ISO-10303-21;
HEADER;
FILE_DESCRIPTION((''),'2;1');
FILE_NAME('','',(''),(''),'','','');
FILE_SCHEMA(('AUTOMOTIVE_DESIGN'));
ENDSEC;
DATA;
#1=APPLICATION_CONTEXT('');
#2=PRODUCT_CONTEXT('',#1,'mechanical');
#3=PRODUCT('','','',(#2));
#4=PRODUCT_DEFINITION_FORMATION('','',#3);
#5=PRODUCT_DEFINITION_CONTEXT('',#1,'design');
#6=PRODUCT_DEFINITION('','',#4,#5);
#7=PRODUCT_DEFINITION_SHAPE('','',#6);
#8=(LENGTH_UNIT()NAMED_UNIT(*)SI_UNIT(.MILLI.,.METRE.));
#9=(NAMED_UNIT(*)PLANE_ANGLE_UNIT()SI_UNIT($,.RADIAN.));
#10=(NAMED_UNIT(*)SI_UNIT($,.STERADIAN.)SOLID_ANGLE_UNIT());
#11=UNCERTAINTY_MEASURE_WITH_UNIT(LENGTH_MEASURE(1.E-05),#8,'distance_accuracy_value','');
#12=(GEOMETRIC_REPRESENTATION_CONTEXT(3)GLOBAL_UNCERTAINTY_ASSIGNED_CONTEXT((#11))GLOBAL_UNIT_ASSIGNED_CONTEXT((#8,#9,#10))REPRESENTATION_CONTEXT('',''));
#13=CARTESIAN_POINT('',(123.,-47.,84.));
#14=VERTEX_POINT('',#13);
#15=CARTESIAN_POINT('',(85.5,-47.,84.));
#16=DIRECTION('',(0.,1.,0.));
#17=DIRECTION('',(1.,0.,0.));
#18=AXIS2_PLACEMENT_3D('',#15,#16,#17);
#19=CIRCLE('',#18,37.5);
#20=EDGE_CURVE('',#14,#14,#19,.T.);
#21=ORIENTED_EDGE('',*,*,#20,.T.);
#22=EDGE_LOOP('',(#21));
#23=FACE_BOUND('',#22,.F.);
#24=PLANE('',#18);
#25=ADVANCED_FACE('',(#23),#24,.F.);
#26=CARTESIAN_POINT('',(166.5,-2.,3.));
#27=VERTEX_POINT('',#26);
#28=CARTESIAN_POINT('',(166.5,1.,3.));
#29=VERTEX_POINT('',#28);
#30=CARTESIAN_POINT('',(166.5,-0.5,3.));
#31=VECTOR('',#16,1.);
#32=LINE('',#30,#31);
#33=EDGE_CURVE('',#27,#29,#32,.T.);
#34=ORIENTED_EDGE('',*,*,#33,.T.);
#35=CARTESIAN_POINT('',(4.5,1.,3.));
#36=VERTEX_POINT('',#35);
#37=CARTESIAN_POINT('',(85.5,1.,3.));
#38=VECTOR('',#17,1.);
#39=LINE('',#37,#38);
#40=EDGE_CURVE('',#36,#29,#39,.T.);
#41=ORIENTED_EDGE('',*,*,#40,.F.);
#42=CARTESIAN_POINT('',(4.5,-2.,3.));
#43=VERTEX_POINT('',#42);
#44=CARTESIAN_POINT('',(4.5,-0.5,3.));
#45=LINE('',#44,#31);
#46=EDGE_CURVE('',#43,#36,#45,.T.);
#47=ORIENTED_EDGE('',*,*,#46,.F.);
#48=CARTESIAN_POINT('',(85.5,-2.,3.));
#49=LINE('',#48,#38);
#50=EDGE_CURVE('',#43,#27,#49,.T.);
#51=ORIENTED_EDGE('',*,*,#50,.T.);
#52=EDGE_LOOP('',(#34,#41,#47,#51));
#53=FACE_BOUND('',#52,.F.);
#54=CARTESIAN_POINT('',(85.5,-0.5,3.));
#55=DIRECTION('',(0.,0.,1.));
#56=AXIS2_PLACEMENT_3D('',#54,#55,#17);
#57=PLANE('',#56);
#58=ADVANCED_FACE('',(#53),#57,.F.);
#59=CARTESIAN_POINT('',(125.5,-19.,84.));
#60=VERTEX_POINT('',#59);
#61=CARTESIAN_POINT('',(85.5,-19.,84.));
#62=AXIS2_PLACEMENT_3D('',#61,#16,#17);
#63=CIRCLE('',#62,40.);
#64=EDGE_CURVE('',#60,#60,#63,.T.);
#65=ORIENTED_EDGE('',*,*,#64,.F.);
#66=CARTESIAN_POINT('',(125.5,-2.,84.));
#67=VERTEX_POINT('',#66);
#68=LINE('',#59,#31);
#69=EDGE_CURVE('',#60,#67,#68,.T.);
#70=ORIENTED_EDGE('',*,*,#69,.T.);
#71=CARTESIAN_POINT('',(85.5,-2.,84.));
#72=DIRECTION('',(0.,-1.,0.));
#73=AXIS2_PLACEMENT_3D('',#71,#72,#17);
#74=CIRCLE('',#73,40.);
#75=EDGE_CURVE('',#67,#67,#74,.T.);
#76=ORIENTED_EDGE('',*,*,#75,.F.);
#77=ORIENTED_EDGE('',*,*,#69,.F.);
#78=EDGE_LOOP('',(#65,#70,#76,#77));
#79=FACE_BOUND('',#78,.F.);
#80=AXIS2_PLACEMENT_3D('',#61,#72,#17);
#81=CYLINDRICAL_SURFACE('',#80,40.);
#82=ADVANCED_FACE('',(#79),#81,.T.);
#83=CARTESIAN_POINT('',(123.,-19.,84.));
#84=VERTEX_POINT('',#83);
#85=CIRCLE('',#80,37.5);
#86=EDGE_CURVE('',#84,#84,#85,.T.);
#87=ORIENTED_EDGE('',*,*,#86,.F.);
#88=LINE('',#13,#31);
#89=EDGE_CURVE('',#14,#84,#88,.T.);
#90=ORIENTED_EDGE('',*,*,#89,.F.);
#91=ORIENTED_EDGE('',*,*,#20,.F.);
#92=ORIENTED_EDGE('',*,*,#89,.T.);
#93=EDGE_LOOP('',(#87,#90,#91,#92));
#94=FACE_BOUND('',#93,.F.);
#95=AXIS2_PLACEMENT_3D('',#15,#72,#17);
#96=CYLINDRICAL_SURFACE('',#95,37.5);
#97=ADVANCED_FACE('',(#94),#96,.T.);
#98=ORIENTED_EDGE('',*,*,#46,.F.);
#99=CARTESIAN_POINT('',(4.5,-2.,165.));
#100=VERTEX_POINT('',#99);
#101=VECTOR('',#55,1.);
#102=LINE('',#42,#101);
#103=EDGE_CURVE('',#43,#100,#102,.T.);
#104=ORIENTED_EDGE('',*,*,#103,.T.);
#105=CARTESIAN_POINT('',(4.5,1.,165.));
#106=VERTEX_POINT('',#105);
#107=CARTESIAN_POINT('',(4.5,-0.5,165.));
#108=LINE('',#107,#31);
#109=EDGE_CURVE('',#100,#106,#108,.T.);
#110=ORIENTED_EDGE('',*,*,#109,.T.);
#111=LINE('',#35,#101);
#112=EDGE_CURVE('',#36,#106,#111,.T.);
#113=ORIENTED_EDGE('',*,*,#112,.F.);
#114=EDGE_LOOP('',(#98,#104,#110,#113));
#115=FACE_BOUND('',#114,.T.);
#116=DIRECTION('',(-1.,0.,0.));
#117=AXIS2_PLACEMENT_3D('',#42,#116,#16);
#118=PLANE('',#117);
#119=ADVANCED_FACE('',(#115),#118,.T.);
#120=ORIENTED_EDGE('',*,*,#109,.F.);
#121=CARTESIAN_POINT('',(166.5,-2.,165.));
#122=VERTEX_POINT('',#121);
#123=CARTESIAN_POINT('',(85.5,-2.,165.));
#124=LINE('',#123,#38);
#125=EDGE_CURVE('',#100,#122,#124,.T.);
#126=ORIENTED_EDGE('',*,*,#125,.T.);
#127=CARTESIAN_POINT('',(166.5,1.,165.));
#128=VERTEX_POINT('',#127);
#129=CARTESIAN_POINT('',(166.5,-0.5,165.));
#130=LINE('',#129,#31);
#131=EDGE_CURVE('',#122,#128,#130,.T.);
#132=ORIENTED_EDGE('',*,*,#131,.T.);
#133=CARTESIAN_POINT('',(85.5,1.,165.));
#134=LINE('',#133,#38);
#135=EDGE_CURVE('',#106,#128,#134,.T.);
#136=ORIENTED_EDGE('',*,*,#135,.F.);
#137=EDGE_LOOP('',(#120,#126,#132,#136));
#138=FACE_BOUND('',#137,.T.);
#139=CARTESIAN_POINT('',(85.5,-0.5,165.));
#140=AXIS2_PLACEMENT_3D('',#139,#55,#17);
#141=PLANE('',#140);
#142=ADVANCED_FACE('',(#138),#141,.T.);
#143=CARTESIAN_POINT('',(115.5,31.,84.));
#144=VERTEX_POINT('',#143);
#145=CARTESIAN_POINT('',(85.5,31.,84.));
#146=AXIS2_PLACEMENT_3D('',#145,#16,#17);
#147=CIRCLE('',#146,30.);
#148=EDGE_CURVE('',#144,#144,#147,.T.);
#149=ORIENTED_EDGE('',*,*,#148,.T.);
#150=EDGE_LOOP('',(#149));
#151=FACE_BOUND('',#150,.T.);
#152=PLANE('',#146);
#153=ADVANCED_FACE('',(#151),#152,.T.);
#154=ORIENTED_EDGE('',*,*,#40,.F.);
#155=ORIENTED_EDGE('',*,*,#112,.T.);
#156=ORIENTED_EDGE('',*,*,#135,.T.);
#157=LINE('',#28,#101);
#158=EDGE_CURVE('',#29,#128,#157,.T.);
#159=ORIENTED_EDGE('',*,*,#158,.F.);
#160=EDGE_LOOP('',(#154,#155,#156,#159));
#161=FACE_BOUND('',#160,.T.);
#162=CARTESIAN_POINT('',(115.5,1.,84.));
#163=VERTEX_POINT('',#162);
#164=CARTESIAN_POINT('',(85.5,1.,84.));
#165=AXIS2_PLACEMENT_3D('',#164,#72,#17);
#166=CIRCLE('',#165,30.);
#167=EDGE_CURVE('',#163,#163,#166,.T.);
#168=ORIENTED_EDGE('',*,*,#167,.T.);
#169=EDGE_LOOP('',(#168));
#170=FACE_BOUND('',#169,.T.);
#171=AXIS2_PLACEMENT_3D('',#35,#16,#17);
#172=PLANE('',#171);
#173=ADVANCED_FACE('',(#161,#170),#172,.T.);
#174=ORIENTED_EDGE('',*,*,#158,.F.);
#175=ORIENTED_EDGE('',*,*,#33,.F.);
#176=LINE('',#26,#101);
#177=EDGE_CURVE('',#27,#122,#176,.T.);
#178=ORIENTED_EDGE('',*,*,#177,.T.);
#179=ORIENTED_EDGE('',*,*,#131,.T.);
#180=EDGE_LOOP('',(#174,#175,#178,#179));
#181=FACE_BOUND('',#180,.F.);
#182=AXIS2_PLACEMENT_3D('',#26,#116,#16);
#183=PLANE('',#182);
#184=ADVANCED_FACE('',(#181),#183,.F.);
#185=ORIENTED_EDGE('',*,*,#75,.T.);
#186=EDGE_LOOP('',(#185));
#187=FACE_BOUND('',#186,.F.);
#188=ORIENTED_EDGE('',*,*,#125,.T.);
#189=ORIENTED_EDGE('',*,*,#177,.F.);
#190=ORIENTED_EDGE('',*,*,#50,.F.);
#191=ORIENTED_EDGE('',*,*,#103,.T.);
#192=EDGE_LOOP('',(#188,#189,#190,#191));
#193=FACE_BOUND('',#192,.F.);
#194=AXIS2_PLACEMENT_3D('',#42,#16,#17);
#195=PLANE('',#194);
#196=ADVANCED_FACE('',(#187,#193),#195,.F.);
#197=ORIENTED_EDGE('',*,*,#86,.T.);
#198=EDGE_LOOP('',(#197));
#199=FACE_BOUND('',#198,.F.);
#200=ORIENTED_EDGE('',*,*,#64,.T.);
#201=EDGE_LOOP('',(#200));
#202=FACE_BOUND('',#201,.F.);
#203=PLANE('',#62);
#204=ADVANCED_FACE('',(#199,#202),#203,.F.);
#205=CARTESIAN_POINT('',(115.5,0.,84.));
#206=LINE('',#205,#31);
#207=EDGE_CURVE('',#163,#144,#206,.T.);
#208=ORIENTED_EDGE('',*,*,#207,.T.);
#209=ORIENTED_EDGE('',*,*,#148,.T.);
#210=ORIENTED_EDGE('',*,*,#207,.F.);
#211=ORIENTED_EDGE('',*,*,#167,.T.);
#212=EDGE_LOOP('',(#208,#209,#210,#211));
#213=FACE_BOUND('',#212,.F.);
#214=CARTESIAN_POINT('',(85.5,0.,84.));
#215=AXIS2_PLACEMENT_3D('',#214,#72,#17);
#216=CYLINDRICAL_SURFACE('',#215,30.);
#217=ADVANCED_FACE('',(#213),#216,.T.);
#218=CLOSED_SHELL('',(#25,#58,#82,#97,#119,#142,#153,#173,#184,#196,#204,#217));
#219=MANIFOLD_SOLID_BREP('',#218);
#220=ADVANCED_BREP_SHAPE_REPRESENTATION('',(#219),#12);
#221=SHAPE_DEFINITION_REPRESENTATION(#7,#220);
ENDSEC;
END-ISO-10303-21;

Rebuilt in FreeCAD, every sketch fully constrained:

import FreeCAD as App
import Part
import Sketcher
from FreeCAD import Vector
Q = App.Units.Quantity

doc = App.newDocument("Part")
body = doc.addObject("PartDesign::Body", "Body")

sketch1 = body.newObject("Sketcher::SketchObject", "Sketch")
sketch1.AttachmentSupport = (doc.getObject("XY_Plane"), [""])
sketch1.MapMode = "FlatFace"
sketch1.addGeometry([
    Part.LineSegment(Vector(0, 3, 0), Vector(0, 0, 0)),
    Part.LineSegment(Vector(0, 0, 0), Vector(162, 0, 0)),
    Part.LineSegment(Vector(162, 0, 0), Vector(162, 3, 0)),
    Part.LineSegment(Vector(162, 3, 0), Vector(0, 3, 0)),
], False)
sketch1.addConstraint([
    Sketcher.Constraint("Coincident", 0, 2, 1, 1),
    Sketcher.Constraint("Coincident", 1, 2, 2, 1),
    Sketcher.Constraint("Coincident", 2, 2, 3, 1),
    Sketcher.Constraint("Coincident", 3, 2, 0, 1),
    Sketcher.Constraint("Vertical", 0),
    Sketcher.Constraint("Horizontal", 1),
    Sketcher.Constraint("Vertical", 2),
    Sketcher.Constraint("Horizontal", 3),
    Sketcher.Constraint("Coincident", 0, 2, -1, 1),
    Sketcher.Constraint("DistanceX", 1, 1, 1, 2, Q("162 mm")),
    Sketcher.Constraint("DistanceY", 0, 2, 0, 1, Q("3 mm")),
])
pad1 = body.newObject("PartDesign::Pad", "Pad")
pad1.Profile = sketch1
pad1.Length = 162
body2 = doc.addObject("PartDesign::Body", "Body001")

sketch2 = body2.newObject("Sketcher::SketchObject", "Sketch001")
sketch2.AttachmentSupport = (doc.getObject("XZ_Plane001"), [""])
sketch2.MapMode = "FlatFace"
sketch2.AttachmentOffset = App.Placement(Vector(0, 0, -2), App.Rotation())
sketch2.addGeometry(Part.Circle(Vector(81, 81, 0), Vector(0, 0, 1), 30), False)
sketch2.addConstraint([
    Sketcher.Constraint("Diameter", 0, Q("60 mm")),
    Sketcher.Constraint("DistanceX", -1, 1, 0, 3, Q("81 mm")),
    Sketcher.Constraint("DistanceY", -1, 1, 0, 3, Q("81 mm")),
])
pad2 = body2.newObject("PartDesign::Pad", "Pad001")
pad2.Profile = sketch2
pad2.Length = 31
pad2.Reversed = True
body3 = doc.addObject("PartDesign::Body", "Body002")

sketch3 = body3.newObject("Sketcher::SketchObject", "Sketch002")
sketch3.AttachmentSupport = (doc.getObject("XZ_Plane002"), [""])
sketch3.MapMode = "FlatFace"
sketch3.AttachmentOffset = App.Placement(Vector(0, 0, 45), App.Rotation())
sketch3.addGeometry(Part.Circle(Vector(81, 81, 0), Vector(0, 0, 1), 37.5), False)
sketch3.addConstraint([
    Sketcher.Constraint("Diameter", 0, Q("75 mm")),
    Sketcher.Constraint("DistanceX", -1, 1, 0, 3, Q("81 mm")),
    Sketcher.Constraint("DistanceY", -1, 1, 0, 3, Q("81 mm")),
])
pad3 = body3.newObject("PartDesign::Pad", "Pad002")
pad3.Profile = sketch3
pad3.Length = 46
pad3.Reversed = True
body4 = doc.addObject("PartDesign::Body", "Body003")

sketch4 = body4.newObject("Sketcher::SketchObject", "Sketch003")
sketch4.AttachmentSupport = (doc.getObject("XZ_Plane003"), [""])
sketch4.MapMode = "FlatFace"
sketch4.AttachmentOffset = App.Placement(Vector(0, 0, 17), App.Rotation())
sketch4.addGeometry(Part.Circle(Vector(81, 81, 0), Vector(0, 0, 1), 40), False)
sketch4.addConstraint([
    Sketcher.Constraint("Diameter", 0, Q("80 mm")),
    Sketcher.Constraint("DistanceX", -1, 1, 0, 3, Q("81 mm")),
    Sketcher.Constraint("DistanceY", -1, 1, 0, 3, Q("81 mm")),
])
pad4 = body4.newObject("PartDesign::Pad", "Pad003")
pad4.Profile = sketch4
pad4.Length = 18
pad4.Reversed = True
doc.recompute()

boolean = body4.newObject("PartDesign::Boolean", "Boolean")
boolean.Type = "Fuse"
boolean.addObjects([body])
doc.recompute()

boolean2 = body4.newObject("PartDesign::Boolean", "Boolean001")
boolean2.Type = "Fuse"
boolean2.addObjects([body2])
doc.recompute()

boolean3 = body4.newObject("PartDesign::Boolean", "Boolean002")
boolean3.Type = "Fuse"
boolean3.addObjects([body3])
body5 = doc.addObject("PartDesign::Body", "Body004")
doc.recompute()

body4.Placement = App.Placement(Vector(4.5, -2, 3), App.Rotation(Vector(0, 0, 1), 0))
boolean4 = body5.newObject("PartDesign::Boolean", "Boolean003")
boolean4.Type = "Fuse"
boolean4.addObjects([body4])

doc.recompute()
